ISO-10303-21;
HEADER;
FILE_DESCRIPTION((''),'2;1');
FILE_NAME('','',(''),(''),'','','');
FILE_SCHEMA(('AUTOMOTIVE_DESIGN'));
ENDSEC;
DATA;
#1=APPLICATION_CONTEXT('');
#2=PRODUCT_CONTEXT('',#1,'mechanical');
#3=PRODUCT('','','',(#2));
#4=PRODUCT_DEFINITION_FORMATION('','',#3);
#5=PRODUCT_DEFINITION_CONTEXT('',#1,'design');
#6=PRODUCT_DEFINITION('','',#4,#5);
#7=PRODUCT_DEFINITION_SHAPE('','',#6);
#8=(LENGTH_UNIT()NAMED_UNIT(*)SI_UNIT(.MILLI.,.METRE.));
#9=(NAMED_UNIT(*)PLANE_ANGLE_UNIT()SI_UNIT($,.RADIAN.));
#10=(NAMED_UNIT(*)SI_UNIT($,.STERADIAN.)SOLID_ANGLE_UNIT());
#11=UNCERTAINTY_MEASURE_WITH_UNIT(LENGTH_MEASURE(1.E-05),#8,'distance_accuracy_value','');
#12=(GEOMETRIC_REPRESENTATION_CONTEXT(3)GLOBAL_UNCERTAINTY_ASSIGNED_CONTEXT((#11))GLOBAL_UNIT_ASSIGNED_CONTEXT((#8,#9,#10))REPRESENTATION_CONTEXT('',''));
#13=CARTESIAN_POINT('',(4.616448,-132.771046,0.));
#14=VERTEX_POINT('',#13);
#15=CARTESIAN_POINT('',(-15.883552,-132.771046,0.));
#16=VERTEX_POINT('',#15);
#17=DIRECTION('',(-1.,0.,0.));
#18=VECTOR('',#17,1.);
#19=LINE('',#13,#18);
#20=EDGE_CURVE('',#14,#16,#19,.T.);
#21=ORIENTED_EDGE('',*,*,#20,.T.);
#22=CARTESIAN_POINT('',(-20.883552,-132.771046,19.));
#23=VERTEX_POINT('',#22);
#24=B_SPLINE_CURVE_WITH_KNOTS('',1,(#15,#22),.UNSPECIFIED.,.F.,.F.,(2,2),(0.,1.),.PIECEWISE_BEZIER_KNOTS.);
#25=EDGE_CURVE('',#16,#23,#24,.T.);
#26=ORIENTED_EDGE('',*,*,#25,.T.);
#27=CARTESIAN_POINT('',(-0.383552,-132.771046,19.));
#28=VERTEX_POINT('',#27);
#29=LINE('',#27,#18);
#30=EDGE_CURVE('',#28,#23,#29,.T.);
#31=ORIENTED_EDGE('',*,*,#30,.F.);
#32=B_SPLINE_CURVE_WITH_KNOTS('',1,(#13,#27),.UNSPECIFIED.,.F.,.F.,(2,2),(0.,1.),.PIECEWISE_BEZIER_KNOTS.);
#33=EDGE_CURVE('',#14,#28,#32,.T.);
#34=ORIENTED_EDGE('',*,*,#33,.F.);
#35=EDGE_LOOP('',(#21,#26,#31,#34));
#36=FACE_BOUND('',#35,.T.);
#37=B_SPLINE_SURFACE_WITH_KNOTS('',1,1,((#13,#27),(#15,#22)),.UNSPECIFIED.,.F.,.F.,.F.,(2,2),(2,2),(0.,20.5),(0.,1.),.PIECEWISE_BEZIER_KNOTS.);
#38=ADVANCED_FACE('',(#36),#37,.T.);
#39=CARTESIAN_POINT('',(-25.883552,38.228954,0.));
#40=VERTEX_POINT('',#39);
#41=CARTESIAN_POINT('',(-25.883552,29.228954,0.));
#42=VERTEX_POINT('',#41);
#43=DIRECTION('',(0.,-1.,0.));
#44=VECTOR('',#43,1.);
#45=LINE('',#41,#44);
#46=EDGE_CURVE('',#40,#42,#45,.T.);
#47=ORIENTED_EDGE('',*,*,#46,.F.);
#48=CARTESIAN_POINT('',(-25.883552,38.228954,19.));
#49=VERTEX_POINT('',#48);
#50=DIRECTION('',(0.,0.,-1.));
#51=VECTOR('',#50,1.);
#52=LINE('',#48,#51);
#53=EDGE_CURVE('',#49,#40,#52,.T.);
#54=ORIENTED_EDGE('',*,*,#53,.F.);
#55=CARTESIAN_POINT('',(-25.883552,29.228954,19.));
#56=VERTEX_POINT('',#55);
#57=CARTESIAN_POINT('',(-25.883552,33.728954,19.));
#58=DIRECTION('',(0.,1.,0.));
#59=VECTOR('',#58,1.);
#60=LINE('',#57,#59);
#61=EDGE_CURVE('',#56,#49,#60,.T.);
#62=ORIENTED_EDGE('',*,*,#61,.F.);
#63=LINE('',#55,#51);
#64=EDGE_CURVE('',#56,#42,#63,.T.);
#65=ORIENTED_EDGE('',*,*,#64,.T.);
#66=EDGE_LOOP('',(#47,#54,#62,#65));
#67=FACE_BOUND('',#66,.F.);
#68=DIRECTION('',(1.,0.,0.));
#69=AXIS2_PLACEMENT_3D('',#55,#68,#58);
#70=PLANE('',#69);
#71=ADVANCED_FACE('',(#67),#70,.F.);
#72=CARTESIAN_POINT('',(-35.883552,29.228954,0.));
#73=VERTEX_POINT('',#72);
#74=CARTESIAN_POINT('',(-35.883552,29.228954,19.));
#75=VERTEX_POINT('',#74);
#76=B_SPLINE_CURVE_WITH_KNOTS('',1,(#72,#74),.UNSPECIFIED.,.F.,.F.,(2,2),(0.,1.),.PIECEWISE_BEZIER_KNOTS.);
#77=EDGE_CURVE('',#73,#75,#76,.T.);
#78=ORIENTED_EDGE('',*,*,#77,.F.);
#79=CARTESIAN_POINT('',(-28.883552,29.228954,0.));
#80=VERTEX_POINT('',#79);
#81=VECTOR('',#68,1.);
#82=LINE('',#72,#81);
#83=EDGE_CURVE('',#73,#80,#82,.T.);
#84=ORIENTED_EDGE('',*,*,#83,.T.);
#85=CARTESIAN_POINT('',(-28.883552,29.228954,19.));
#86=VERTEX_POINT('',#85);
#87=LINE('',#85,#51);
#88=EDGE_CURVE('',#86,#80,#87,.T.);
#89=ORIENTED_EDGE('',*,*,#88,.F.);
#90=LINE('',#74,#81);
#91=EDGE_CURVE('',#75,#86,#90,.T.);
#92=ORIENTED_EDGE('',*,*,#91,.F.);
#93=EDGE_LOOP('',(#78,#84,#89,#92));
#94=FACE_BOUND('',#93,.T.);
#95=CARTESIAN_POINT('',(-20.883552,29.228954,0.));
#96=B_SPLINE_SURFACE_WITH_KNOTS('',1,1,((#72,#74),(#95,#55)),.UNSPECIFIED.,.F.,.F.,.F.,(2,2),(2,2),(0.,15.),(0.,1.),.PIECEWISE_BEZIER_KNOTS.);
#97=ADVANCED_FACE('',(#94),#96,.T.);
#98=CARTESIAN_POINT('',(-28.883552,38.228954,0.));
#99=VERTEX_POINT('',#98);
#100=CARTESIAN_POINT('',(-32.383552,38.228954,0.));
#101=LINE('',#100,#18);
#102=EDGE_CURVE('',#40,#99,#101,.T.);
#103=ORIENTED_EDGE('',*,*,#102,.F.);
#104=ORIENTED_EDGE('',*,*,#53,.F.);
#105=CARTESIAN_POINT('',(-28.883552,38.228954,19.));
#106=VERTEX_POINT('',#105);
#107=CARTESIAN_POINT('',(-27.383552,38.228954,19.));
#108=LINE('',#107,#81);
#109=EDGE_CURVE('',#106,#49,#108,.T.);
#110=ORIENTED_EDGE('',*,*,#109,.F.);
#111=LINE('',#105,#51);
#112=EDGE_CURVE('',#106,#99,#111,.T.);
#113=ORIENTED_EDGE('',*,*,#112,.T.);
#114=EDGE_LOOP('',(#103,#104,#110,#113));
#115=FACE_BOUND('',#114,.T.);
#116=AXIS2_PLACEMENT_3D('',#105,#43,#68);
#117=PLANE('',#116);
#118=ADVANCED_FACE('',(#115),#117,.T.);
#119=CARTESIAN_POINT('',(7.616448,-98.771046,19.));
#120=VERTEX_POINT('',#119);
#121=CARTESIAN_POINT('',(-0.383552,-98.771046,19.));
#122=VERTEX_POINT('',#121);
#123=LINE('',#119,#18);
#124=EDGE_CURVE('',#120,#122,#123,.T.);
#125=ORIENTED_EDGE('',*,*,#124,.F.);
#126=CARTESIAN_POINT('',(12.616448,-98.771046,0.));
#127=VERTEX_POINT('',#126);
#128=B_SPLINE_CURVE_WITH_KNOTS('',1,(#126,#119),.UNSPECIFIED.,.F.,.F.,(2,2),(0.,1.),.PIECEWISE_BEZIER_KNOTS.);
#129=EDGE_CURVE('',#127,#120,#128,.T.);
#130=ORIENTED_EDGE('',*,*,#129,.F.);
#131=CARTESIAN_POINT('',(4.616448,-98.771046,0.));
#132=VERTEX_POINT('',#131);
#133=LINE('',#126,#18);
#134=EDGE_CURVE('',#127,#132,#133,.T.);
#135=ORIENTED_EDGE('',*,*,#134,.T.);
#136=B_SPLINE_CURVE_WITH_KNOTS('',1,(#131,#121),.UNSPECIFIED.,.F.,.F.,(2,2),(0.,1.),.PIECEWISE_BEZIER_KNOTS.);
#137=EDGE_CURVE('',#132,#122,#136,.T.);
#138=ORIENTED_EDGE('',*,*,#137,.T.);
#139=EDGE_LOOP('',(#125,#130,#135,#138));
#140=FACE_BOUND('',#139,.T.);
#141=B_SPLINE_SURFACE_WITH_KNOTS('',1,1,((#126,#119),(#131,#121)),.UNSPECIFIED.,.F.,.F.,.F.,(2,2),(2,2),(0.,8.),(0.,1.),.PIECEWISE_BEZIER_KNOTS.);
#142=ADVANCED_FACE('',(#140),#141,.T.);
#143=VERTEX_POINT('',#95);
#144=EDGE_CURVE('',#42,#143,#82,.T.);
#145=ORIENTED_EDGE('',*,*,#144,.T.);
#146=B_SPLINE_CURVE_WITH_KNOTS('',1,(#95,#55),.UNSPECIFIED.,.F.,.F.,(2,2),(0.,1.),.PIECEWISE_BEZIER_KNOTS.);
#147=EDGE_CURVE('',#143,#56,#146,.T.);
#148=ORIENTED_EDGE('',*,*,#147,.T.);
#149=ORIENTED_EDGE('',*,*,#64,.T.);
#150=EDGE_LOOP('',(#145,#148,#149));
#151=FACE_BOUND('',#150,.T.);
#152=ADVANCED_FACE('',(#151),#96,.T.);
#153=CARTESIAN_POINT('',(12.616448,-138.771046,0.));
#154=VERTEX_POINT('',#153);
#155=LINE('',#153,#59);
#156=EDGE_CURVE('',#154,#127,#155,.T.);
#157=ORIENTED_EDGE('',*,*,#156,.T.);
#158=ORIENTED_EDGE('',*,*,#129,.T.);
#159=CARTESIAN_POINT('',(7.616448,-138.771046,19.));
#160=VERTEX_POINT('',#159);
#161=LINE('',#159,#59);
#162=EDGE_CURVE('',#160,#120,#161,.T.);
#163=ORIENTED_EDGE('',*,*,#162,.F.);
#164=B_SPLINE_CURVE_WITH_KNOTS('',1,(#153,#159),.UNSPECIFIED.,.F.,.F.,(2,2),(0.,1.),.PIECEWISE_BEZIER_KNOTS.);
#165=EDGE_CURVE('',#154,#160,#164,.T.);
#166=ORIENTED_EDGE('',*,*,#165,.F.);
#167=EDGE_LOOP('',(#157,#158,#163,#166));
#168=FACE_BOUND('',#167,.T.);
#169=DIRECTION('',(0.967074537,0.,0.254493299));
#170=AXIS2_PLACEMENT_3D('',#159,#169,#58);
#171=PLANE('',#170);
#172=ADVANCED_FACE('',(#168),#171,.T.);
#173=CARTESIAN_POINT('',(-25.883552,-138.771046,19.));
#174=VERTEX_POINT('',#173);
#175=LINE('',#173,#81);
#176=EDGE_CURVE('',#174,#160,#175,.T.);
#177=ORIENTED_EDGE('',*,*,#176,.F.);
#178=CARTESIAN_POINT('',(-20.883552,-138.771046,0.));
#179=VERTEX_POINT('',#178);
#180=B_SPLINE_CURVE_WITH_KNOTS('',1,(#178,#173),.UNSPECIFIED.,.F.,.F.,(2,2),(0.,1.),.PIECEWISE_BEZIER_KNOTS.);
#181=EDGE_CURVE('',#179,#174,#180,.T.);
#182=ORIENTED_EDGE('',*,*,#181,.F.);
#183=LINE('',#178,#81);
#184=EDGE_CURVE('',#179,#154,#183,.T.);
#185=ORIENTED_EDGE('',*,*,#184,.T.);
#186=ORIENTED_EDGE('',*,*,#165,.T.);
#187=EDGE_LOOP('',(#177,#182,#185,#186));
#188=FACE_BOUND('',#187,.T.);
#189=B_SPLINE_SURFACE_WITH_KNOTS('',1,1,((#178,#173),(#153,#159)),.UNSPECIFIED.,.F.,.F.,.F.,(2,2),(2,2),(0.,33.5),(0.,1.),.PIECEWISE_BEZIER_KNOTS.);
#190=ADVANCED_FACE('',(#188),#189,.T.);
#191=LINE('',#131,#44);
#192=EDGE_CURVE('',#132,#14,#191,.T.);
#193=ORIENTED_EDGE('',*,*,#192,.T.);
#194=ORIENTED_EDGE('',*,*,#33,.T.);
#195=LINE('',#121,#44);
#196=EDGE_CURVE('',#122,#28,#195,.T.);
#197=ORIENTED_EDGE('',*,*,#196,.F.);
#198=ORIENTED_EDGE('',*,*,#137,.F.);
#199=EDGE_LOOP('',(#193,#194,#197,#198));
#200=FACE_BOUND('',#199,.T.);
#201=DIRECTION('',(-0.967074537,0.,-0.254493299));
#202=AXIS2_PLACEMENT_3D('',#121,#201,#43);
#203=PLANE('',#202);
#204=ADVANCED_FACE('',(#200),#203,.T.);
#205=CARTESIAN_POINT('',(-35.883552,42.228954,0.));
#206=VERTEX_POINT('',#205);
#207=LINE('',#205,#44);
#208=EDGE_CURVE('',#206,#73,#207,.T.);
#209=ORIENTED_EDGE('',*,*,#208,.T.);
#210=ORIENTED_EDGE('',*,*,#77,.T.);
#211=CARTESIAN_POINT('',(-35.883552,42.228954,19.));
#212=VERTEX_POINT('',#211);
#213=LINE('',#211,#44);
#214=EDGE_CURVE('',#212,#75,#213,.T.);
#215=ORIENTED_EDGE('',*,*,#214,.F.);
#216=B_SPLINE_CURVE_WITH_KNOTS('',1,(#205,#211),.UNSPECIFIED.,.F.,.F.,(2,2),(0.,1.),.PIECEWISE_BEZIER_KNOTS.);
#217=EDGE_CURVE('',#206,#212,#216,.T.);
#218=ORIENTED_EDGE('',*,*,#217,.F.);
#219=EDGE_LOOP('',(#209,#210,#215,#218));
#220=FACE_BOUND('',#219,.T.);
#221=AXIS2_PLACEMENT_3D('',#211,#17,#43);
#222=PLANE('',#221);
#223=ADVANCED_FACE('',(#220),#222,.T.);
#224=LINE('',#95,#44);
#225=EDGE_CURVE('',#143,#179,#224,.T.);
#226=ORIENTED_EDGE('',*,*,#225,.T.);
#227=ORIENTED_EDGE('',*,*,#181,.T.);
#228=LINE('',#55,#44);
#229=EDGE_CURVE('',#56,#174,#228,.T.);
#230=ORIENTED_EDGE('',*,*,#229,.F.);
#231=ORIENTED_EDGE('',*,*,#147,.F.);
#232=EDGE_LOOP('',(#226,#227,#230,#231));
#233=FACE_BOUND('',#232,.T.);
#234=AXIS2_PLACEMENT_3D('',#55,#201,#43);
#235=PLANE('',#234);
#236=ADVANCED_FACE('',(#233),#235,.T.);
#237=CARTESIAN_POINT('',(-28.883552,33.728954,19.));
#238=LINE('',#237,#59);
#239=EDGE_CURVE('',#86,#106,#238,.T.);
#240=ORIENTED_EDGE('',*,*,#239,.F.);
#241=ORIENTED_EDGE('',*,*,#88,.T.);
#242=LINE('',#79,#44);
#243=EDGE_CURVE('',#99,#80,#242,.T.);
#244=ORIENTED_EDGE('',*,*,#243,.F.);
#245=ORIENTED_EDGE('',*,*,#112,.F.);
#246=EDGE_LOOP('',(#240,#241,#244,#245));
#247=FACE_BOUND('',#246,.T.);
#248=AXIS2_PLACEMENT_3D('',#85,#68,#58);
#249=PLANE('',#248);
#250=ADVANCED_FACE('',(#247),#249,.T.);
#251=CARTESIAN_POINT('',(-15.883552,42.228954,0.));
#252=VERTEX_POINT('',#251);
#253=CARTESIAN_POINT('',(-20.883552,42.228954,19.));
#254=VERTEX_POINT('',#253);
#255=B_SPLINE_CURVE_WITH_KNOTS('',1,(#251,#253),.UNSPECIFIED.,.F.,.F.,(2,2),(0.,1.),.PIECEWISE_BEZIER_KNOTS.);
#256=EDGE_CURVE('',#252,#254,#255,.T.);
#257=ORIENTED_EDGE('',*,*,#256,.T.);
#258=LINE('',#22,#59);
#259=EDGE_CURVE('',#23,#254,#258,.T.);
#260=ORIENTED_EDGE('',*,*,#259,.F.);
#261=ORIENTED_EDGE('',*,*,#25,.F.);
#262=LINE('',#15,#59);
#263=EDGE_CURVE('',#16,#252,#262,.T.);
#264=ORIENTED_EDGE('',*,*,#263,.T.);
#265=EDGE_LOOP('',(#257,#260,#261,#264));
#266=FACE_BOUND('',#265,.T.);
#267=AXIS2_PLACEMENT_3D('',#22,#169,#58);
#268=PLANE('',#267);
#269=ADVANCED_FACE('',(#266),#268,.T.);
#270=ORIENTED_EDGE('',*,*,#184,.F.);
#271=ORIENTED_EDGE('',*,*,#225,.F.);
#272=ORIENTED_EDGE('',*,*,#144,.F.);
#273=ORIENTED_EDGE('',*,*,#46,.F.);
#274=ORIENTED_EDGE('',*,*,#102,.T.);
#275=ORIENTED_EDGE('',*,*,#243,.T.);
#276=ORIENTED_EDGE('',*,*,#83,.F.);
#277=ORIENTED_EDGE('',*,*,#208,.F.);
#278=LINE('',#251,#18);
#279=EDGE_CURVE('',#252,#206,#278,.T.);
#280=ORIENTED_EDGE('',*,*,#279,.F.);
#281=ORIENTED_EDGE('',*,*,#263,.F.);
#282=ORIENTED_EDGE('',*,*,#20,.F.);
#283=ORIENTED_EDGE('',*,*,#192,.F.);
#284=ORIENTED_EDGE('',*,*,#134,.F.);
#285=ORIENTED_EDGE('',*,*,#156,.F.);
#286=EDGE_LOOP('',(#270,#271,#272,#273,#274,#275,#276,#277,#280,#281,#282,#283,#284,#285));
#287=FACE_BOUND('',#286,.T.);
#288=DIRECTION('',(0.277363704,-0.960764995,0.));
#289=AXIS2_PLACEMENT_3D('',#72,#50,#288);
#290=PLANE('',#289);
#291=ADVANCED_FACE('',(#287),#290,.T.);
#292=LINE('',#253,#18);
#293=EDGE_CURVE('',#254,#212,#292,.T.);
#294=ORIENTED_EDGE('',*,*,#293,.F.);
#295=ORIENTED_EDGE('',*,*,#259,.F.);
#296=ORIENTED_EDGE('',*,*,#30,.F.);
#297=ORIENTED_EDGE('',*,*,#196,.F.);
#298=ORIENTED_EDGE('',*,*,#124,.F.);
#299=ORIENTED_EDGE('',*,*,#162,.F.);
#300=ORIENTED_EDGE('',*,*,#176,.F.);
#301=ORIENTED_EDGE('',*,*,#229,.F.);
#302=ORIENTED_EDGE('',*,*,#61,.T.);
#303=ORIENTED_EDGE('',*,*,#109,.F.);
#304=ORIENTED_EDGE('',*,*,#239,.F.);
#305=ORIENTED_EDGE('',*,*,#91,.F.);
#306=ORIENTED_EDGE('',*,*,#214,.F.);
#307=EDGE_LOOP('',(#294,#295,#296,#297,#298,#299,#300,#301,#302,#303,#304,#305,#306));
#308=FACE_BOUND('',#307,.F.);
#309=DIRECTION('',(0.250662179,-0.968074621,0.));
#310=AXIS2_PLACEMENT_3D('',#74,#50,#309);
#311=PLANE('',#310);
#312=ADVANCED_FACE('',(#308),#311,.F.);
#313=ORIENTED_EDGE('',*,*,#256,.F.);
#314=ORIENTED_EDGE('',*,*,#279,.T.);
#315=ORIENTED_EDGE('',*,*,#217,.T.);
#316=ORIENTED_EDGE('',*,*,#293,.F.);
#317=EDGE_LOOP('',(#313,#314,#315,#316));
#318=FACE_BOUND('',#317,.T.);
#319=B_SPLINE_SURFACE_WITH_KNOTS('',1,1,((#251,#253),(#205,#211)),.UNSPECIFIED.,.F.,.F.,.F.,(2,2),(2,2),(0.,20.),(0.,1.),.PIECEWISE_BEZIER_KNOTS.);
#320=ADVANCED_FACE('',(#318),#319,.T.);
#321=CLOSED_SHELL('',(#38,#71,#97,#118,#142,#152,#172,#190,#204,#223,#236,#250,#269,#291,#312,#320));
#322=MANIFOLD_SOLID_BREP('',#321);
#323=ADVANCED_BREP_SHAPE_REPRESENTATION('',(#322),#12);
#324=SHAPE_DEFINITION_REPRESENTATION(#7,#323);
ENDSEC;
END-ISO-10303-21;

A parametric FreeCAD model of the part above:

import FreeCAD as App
import Part
import Sketcher
from FreeCAD import Vector
Q = App.Units.Quantity

doc = App.newDocument("Part")
params = doc.addObject("Spreadsheet::Sheet", "Params")
for row, (alias, value) in enumerate([
    ("sketch1_width", "15 mm"),
    ("sketch1_width2", "8 mm"),
    ("sketch1_width3", "20 mm"),
    ("sketch1_height", "168 mm"),
    ("sketch1_height2", "40 mm"),
    ("sketch2_width", "10 mm"),
    ("sketch2_width2", "8 mm"),
    ("sketch2_width3", "15 mm"),
    ("sketch2_height", "168 mm"),
    ("sketch2_height2", "40 mm"),
    ("sketch3_width", "3 mm"),
    ("sketch3_height", "9 mm"),
    ("pocket1_length", "25 mm"),
], start=1):
    params.set(f"A{row}", alias)
    params.set(f"B{row}", "=" + value)
    params.setAlias(f"B{row}", alias)

body = doc.addObject("PartDesign::Body", "Body")

# Sketch on XY plane
sketch1 = body.newObject("Sketcher::SketchObject", "Sketch")
sketch1.AttachmentSupport = (doc.getObject("XY_Plane"), [""])
sketch1.MapMode = "FlatFace"
sketch1.addGeometry(Part.LineSegment(Vector(-36, 29, 0), Vector(-21, 29, 0)), False)
sketch1.addGeometry(Part.LineSegment(Vector(-21, 29, 0), Vector(-21, -139, 0)), False)
sketch1.addGeometry(Part.LineSegment(Vector(-21, -139, 0), Vector(13, -139, 0)), False)
sketch1.addGeometry(Part.LineSegment(Vector(13, -139, 0), Vector(13, -99, 0)), False)
sketch1.addGeometry(Part.LineSegment(Vector(13, -99, 0), Vector(5, -99, 0)), False)
sketch1.addGeometry(Part.LineSegment(Vector(5, -99, 0), Vector(5, -133, 0)), False)
sketch1.addGeometry(Part.LineSegment(Vector(5, -133, 0), Vector(-16, -133, 0)), False)
sketch1.addGeometry(Part.LineSegment(Vector(-16, -133, 0), Vector(-16, 42, 0)), False)
sketch1.addGeometry(Part.LineSegment(Vector(-16, 42, 0), Vector(-36, 42, 0)), False)
sketch1.addGeometry(Part.LineSegment(Vector(-36, 42, 0), Vector(-36, 29, 0)), False)
sketch1.addConstraint(Sketcher.Constraint("Coincident", 0, 2, 1, 1))
sketch1.addConstraint(Sketcher.Constraint("Coincident", 1, 2, 2, 1))
sketch1.addConstraint(Sketcher.Constraint("Coincident", 2, 2, 3, 1))
sketch1.addConstraint(Sketcher.Constraint("Coincident", 3, 2, 4, 1))
sketch1.addConstraint(Sketcher.Constraint("Coincident", 4, 2, 5, 1))
sketch1.addConstraint(Sketcher.Constraint("Coincident", 5, 2, 6, 1))
sketch1.addConstraint(Sketcher.Constraint("Coincident", 6, 2, 7, 1))
sketch1.addConstraint(Sketcher.Constraint("Coincident", 7, 2, 8, 1))
sketch1.addConstraint(Sketcher.Constraint("Coincident", 8, 2, 9, 1))
sketch1.addConstraint(Sketcher.Constraint("Coincident", 9, 2, 0, 1))
sketch1.addConstraint(Sketcher.Constraint("Horizontal", 0))
sketch1.addConstraint(Sketcher.Constraint("Vertical", 1))
sketch1.addConstraint(Sketcher.Constraint("Horizontal", 2))
sketch1.addConstraint(Sketcher.Constraint("Vertical", 3))
sketch1.addConstraint(Sketcher.Constraint("Horizontal", 4))
sketch1.addConstraint(Sketcher.Constraint("Vertical", 5))
sketch1.addConstraint(Sketcher.Constraint("Horizontal", 6))
sketch1.addConstraint(Sketcher.Constraint("Vertical", 7))
sketch1.addConstraint(Sketcher.Constraint("Horizontal", 8))
sketch1.addConstraint(Sketcher.Constraint("Vertical", 9))
sketch1.addConstraint(Sketcher.Constraint("DistanceX", 0, 1, 0, 2, Q("15 mm")))
sketch1.addConstraint(Sketcher.Constraint("DistanceX", 4, 2, 4, 1, Q("8 mm")))
sketch1.addConstraint(Sketcher.Constraint("DistanceX", 8, 2, 8, 1, Q("20 mm")))
sketch1.addConstraint(Sketcher.Constraint("DistanceY", 1, 2, 1, 1, Q("168 mm")))
sketch1.addConstraint(Sketcher.Constraint("DistanceY", 3, 1, 3, 2, Q("40 mm")))
sketch1.addConstraint(Sketcher.Constraint("DistanceY", 5, 2, 5, 1, Q("34 mm")))
sketch1.addConstraint(Sketcher.Constraint("DistanceY", 7, 1, 7, 2, Q("175 mm")))
sketch1.addConstraint(Sketcher.Constraint("DistanceX", 2, 1, 2, 2, Q("33.5 mm")))
sketch1.addConstraint(Sketcher.Constraint("DistanceX", 0, 2, -1, 1, Q("20.883552 mm")))
sketch1.addConstraint(Sketcher.Constraint("DistanceY", -1, 1, 0, 2, Q("29.228954 mm")))
sketch1.setExpression("Constraints[20]", "Params.sketch1_width")
sketch1.setExpression("Constraints[21]", "Params.sketch1_width2")
sketch1.setExpression("Constraints[22]", "Params.sketch1_width3")
sketch1.setExpression("Constraints[23]", "Params.sketch1_height")
sketch1.setExpression("Constraints[24]", "Params.sketch1_height2")

# Sketch on XY plane
sketch2 = body.newObject("Sketcher::SketchObject", "Sketch001")
sketch2.AttachmentSupport = (doc.getObject("XY_Plane"), [""])
sketch2.MapMode = "FlatFace"
sketch2.AttachmentOffset = App.Placement(Vector(0, 0, 19), App.Rotation())
sketch2.addGeometry(Part.LineSegment(Vector(-36, 29, 0), Vector(-26, 29, 0)), False)
sketch2.addGeometry(Part.LineSegment(Vector(-26, 29, 0), Vector(-26, -139, 0)), False)
sketch2.addGeometry(Part.LineSegment(Vector(-26, -139, 0), Vector(8, -139, 0)), False)
sketch2.addGeometry(Part.LineSegment(Vector(8, -139, 0), Vector(8, -99, 0)), False)
sketch2.addGeometry(Part.LineSegment(Vector(8, -99, 0), Vector(0, -99, 0)), False)
sketch2.addGeometry(Part.LineSegment(Vector(0, -99, 0), Vector(0, -133, 0)), False)
sketch2.addGeometry(Part.LineSegment(Vector(0, -133, 0), Vector(-21, -133, 0)), False)
sketch2.addGeometry(Part.LineSegment(Vector(-21, -133, 0), Vector(-21, 42, 0)), False)
sketch2.addGeometry(Part.LineSegment(Vector(-21, 42, 0), Vector(-36, 42, 0)), False)
sketch2.addGeometry(Part.LineSegment(Vector(-36, 42, 0), Vector(-36, 29, 0)), False)
sketch2.addConstraint(Sketcher.Constraint("Coincident", 0, 2, 1, 1))
sketch2.addConstraint(Sketcher.Constraint("Coincident", 1, 2, 2, 1))
sketch2.addConstraint(Sketcher.Constraint("Coincident", 2, 2, 3, 1))
sketch2.addConstraint(Sketcher.Constraint("Coincident", 3, 2, 4, 1))
sketch2.addConstraint(Sketcher.Constraint("Coincident", 4, 2, 5, 1))
sketch2.addConstraint(Sketcher.Constraint("Coincident", 5, 2, 6, 1))
sketch2.addConstraint(Sketcher.Constraint("Coincident", 6, 2, 7, 1))
sketch2.addConstraint(Sketcher.Constraint("Coincident", 7, 2, 8, 1))
sketch2.addConstraint(Sketcher.Constraint("Coincident", 8, 2, 9, 1))
sketch2.addConstraint(Sketcher.Constraint("Coincident", 9, 2, 0, 1))
sketch2.addConstraint(Sketcher.Constraint("Horizontal", 0))
sketch2.addConstraint(Sketcher.Constraint("Vertical", 1))
sketch2.addConstraint(Sketcher.Constraint("Horizontal", 2))
sketch2.addConstraint(Sketcher.Constraint("Vertical", 3))
sketch2.addConstraint(Sketcher.Constraint("Horizontal", 4))
sketch2.addConstraint(Sketcher.Constraint("Vertical", 5))
sketch2.addConstraint(Sketcher.Constraint("Horizontal", 6))
sketch2.addConstraint(Sketcher.Constraint("Vertical", 7))
sketch2.addConstraint(Sketcher.Constraint("Horizontal", 8))
sketch2.addConstraint(Sketcher.Constraint("Vertical", 9))
sketch2.addConstraint(Sketcher.Constraint("DistanceX", 0, 1, 0, 2, Q("10 mm")))
sketch2.addConstraint(Sketcher.Constraint("DistanceX", 4, 2, 4, 1, Q("8 mm")))
sketch2.addConstraint(Sketcher.Constraint("DistanceX", 8, 2, 8, 1, Q("15 mm")))
sketch2.addConstraint(Sketcher.Constraint("DistanceY", 1, 2, 1, 1, Q("168 mm")))
sketch2.addConstraint(Sketcher.Constraint("DistanceY", 3, 1, 3, 2, Q("40 mm")))
sketch2.addConstraint(Sketcher.Constraint("DistanceY", 5, 2, 5, 1, Q("34 mm")))
sketch2.addConstraint(Sketcher.Constraint("DistanceY", 7, 1, 7, 2, Q("175 mm")))
sketch2.addConstraint(Sketcher.Constraint("DistanceX", 2, 1, 2, 2, Q("33.5 mm")))
sketch2.addConstraint(Sketcher.Constraint("DistanceX", 0, 2, -1, 1, Q("25.883552 mm")))
sketch2.addConstraint(Sketcher.Constraint("DistanceY", -1, 1, 0, 2, Q("29.228954 mm")))
sketch2.setExpression("Constraints[20]", "Params.sketch2_width")
sketch2.setExpression("Constraints[21]", "Params.sketch2_width2")
sketch2.setExpression("Constraints[22]", "Params.sketch2_width3")
sketch2.setExpression("Constraints[23]", "Params.sketch2_height")
sketch2.setExpression("Constraints[24]", "Params.sketch2_height2")

additiveloft = body.newObject("PartDesign::AdditiveLoft", "AdditiveLoft")
additiveloft.Profile = sketch1
additiveloft.Sections = [sketch2]

# Sketch on XY plane
sketch3 = body.newObject("Sketcher::SketchObject", "Sketch002")
sketch3.AttachmentSupport = (doc.getObject("XY_Plane"), [""])
sketch3.MapMode = "FlatFace"
sketch3.AttachmentOffset = App.Placement(Vector(0, 0, 19), App.Rotation())
sketch3.addGeometry(Part.LineSegment(Vector(-28.9, 38.2, 0), Vector(-28.9, 29.2, 0)), False)
sketch3.addGeometry(Part.LineSegment(Vector(-28.9, 29.2, 0), Vector(-25.9, 29.2, 0)), False)
sketch3.addGeometry(Part.LineSegment(Vector(-25.9, 29.2, 0), Vector(-25.9, 38.2, 0)), False)
sketch3.addGeometry(Part.LineSegment(Vector(-25.9, 38.2, 0), Vector(-28.9, 38.2, 0)), False)
sketch3.addConstraint(Sketcher.Constraint("Coincident", 0, 2, 1, 1))
sketch3.addConstraint(Sketcher.Constraint("Coincident", 1, 2, 2, 1))
sketch3.addConstraint(Sketcher.Constraint("Coincident", 2, 2, 3, 1))
sketch3.addConstraint(Sketcher.Constraint("Coincident", 3, 2, 0, 1))
sketch3.addConstraint(Sketcher.Constraint("Vertical", 0))
sketch3.addConstraint(Sketcher.Constraint("Horizontal", 1))
sketch3.addConstraint(Sketcher.Constraint("Vertical", 2))
sketch3.addConstraint(Sketcher.Constraint("Horizontal", 3))
sketch3.addConstraint(Sketcher.Constraint("DistanceX", 1, 1, 1, 2, Q("3 mm")))
sketch3.addConstraint(Sketcher.Constraint("DistanceY", 0, 2, 0, 1, Q("9 mm")))
sketch3.addConstraint(Sketcher.Constraint("DistanceX", 0, 2, -1, 1, Q("28.883552 mm")))
sketch3.addConstraint(Sketcher.Constraint("DistanceY", -1, 1, 0, 2, Q("29.228954 mm")))
sketch3.setExpression("Constraints[8]", "Params.sketch3_width")
sketch3.setExpression("Constraints[9]", "Params.sketch3_height")
pocket1 = body.newObject("PartDesign::Pocket", "Pocket")
pocket1.Profile = sketch3
pocket1.setExpression("Length", "Params.pocket1_length")

doc.recompute()
